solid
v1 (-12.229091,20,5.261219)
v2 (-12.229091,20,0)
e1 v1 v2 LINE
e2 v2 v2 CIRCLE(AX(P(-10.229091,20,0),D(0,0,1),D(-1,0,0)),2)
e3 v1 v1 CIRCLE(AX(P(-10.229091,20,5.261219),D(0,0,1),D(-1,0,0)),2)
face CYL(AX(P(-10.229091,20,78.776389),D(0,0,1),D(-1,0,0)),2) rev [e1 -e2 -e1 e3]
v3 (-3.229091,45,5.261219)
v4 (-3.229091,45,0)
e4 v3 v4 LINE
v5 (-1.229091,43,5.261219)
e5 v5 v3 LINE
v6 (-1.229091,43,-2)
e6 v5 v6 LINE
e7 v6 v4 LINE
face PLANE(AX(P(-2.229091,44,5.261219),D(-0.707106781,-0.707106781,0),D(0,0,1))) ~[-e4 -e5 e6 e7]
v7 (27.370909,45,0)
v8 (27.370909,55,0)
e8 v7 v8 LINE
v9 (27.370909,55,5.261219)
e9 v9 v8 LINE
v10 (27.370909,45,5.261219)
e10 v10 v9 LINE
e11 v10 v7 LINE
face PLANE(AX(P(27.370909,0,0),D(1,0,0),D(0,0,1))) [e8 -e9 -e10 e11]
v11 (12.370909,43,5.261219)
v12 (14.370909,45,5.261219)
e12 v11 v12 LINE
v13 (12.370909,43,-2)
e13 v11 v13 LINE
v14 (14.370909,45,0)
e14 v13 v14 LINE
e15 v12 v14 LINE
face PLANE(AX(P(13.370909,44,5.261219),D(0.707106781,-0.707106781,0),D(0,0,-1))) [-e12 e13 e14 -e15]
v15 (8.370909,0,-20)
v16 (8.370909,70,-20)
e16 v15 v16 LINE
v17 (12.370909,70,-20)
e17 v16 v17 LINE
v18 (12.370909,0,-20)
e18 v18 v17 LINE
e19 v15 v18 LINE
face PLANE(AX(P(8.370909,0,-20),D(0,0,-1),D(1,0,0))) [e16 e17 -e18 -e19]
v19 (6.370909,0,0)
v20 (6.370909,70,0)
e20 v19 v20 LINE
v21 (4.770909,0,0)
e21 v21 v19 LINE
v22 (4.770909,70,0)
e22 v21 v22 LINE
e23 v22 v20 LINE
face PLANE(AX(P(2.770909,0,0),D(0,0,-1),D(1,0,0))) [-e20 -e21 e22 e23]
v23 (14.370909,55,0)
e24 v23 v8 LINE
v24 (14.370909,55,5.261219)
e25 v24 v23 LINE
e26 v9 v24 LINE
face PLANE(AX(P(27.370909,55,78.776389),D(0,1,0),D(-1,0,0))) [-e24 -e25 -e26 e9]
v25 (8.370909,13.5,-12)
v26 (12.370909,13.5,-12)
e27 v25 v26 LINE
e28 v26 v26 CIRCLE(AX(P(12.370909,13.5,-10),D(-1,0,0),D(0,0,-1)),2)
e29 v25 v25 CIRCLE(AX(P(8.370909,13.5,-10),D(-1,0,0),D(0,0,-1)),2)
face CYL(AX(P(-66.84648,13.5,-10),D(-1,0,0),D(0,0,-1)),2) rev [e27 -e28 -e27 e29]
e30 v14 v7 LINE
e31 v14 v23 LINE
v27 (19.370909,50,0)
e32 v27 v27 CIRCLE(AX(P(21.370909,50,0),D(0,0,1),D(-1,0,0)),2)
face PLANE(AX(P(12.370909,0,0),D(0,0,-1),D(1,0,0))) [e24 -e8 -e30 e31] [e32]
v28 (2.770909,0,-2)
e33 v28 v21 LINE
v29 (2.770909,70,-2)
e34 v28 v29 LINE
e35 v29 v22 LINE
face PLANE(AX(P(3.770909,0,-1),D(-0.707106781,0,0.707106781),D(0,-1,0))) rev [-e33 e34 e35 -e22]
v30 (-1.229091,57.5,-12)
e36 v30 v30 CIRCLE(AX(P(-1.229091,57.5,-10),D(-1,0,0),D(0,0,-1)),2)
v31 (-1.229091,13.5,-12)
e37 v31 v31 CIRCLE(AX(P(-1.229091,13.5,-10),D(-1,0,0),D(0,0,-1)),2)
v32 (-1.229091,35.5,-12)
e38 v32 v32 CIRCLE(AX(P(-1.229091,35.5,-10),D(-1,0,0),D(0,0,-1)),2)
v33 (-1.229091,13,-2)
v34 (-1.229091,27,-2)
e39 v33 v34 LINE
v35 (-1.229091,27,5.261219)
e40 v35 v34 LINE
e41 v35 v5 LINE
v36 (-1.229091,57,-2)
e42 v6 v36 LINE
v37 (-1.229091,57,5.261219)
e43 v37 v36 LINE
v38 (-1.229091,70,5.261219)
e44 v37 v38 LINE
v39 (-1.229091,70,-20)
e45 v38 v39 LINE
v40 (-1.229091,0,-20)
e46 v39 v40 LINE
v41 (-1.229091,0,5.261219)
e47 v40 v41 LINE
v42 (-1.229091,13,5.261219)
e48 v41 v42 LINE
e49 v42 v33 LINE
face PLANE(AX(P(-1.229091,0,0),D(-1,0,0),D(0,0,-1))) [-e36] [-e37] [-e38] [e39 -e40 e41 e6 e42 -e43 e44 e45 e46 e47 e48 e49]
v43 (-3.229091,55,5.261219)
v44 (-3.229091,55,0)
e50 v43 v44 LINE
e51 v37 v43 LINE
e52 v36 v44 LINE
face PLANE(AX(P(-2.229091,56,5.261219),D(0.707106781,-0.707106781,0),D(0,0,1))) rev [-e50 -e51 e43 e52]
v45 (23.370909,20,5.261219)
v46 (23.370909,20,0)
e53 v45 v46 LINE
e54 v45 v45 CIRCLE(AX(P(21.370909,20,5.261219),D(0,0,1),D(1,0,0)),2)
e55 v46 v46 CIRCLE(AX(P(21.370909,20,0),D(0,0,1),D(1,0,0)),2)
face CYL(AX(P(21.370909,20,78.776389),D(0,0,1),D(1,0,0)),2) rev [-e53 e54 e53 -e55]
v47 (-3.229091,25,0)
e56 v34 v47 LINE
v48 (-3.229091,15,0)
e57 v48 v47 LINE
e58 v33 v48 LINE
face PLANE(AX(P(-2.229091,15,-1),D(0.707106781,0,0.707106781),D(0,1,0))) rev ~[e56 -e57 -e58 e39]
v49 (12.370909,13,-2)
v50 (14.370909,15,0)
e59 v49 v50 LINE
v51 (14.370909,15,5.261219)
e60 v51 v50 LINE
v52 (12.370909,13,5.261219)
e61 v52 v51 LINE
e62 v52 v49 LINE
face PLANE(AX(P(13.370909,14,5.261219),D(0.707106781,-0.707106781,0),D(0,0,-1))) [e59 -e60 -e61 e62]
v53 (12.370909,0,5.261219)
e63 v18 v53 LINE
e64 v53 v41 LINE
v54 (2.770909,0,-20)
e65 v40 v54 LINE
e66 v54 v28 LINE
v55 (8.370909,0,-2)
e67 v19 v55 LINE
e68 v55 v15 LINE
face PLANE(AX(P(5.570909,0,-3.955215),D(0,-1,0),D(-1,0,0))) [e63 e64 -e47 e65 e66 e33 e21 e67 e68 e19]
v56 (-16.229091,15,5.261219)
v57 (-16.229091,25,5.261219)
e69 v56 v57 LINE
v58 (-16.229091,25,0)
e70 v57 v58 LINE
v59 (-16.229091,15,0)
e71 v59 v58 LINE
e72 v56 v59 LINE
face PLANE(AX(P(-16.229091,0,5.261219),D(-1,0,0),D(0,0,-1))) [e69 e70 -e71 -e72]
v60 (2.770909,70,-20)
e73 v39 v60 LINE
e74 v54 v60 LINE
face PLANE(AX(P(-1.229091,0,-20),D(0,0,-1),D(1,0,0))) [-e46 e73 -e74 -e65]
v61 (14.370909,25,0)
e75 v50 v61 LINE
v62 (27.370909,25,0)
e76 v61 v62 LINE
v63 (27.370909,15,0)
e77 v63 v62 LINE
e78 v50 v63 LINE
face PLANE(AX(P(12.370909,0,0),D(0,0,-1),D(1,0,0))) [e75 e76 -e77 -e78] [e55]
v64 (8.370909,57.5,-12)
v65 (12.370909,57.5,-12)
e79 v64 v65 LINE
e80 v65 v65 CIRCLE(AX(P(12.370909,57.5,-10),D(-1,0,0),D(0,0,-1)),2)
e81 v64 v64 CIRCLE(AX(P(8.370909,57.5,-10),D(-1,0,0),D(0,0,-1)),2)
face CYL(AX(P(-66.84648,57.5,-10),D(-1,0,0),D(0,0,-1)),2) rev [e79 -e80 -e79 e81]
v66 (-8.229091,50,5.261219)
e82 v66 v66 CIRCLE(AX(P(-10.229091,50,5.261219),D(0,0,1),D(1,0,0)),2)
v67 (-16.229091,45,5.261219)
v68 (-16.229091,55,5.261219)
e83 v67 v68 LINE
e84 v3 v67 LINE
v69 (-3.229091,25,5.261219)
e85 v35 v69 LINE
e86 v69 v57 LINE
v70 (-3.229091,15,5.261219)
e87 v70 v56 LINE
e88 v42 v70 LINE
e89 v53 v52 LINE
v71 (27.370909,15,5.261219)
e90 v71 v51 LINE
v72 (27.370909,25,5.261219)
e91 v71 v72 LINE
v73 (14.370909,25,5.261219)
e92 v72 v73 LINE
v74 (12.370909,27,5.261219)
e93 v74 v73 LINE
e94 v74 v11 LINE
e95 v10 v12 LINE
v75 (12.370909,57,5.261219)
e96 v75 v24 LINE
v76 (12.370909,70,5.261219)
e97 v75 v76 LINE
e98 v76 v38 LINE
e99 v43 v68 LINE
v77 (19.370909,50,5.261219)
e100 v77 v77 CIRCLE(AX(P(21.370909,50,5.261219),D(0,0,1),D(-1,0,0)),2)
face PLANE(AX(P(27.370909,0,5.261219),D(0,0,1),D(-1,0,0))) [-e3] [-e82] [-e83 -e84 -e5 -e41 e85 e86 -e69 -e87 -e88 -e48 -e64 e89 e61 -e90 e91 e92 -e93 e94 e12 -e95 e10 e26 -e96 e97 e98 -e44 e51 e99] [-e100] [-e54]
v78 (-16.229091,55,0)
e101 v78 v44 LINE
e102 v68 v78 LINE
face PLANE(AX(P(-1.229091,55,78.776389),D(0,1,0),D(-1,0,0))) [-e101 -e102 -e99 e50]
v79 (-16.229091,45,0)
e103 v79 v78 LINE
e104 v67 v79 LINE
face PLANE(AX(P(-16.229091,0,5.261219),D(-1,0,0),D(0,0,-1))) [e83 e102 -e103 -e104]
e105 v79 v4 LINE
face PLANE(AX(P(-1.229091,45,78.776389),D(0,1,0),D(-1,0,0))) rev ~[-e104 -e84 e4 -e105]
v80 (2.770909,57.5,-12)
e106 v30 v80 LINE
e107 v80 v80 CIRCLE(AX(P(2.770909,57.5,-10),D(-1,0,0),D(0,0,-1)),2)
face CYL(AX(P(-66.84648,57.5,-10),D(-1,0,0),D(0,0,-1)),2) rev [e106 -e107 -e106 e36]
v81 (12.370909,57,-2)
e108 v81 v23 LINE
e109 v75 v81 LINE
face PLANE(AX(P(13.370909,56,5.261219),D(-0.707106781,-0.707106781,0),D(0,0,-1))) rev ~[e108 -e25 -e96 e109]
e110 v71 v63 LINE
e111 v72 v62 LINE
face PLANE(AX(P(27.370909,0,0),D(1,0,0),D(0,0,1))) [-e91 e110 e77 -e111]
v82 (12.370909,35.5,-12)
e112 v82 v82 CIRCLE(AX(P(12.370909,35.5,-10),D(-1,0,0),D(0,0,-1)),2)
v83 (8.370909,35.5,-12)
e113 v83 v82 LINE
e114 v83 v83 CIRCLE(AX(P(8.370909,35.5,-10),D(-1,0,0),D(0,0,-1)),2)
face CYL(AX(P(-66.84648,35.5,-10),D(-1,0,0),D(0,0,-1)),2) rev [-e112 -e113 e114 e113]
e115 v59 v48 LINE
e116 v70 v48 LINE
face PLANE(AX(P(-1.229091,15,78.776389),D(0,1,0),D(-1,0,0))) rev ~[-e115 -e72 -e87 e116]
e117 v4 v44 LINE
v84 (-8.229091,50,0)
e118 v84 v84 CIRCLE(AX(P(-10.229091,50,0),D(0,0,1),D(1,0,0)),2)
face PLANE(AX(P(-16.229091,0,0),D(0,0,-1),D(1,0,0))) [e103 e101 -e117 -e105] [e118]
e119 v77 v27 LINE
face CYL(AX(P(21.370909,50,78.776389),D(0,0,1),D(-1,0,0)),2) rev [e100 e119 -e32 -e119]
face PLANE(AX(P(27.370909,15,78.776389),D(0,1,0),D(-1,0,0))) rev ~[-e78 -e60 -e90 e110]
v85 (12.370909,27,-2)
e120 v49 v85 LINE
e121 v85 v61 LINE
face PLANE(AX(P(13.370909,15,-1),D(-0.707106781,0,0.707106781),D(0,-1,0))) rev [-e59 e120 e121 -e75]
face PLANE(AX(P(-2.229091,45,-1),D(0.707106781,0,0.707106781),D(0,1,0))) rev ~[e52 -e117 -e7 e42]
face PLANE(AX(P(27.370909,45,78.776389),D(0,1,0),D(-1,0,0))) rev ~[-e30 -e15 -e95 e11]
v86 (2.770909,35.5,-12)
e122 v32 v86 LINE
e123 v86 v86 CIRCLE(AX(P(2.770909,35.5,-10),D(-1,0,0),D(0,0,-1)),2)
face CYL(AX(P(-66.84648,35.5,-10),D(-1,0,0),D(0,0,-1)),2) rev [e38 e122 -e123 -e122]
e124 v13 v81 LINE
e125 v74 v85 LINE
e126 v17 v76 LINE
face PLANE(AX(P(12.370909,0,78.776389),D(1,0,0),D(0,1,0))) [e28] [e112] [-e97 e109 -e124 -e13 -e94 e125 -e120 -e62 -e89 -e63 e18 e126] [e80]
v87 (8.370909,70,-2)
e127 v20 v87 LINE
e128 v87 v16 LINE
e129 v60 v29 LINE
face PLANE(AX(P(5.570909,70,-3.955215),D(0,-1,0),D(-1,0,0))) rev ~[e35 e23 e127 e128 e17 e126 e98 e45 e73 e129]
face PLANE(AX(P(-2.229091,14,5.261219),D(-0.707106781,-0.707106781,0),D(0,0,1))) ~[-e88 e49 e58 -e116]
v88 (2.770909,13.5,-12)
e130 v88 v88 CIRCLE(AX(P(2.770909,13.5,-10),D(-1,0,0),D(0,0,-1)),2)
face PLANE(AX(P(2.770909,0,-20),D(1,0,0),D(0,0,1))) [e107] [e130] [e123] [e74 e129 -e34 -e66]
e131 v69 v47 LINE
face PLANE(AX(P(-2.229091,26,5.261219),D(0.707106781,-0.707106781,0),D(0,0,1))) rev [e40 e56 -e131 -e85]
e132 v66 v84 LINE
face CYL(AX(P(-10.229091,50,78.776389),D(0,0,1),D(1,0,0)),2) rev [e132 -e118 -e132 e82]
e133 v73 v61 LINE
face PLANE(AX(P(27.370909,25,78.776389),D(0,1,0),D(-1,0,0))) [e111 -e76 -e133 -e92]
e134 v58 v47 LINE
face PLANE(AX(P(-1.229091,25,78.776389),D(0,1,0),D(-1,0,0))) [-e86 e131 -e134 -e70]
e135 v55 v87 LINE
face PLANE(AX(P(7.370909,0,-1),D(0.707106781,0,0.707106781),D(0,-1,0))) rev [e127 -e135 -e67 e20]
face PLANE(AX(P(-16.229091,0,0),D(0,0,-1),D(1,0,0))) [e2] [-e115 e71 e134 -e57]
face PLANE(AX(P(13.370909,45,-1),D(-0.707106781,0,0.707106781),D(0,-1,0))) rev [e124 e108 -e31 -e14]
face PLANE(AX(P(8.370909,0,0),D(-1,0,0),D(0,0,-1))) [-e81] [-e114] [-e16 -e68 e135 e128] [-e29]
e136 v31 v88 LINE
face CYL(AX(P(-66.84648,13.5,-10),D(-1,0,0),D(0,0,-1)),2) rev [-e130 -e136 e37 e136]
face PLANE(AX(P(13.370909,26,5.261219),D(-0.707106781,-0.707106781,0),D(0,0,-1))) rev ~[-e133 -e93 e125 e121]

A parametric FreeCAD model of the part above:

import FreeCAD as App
import Part
import Sketcher

V = App.Vector


def edges_at(feature, points):
    """Names of the edges that pass closest to the given points."""
    edges = feature.Shape.Edges
    near = lambda p: min(range(len(edges)), key=lambda i: edges[i].distToShape(Part.Vertex(*p))[0])
    return sorted({f"Edge{near(p) + 1}" for p in points})


def add_polygon(sketch, points):
    """Adds a closed chain of lines whose ends are joined by coincident constraints."""
    first, n = sketch.GeometryCount, len(points)
    for a, b in zip(points, points[1:] + points[:1]):
        sketch.addGeometry(Part.LineSegment(App.Vector(*a, 0), App.Vector(*b, 0)), False)
    for i in range(n):
        sketch.addConstraint(Sketcher.Constraint("Coincident", first + i, 2, first + (i + 1) % n, 1))

doc = App.newDocument("Part")
body = doc.addObject("PartDesign::Body", "Body")

sketch1 = body.newObject("Sketcher::SketchObject", "Sketch")
sketch1.AttachmentSupport = (doc.getObject("XZ_Plane"), [""])
sketch1.MapMode = "FlatFace"
add_polygon(sketch1, [(-1.229091, 0), (-16.229091, 0), (-16.229091, 5.261219), (27.370909, 5.261219), (27.370909, 0), (12.370909, 0), (12.370909, -20), (8.370909, -20), (8.370909, 0), (2.770909, 0), (2.770909, -20), (-1.229091, -20)])
sketch1.addConstraint([
    Sketcher.Constraint("Horizontal", 0),
    Sketcher.Constraint("Vertical", 1),
    Sketcher.Constraint("Horizontal", 2),
    Sketcher.Constraint("Vertical", 3),
    Sketcher.Constraint("Horizontal", 4),
    Sketcher.Constraint("Vertical", 5),
    Sketcher.Constraint("Horizontal", 6),
    Sketcher.Constraint("Vertical", 7),
    Sketcher.Constraint("Horizontal", 8),
    Sketcher.Constraint("Vertical", 9),
    Sketcher.Constraint("Horizontal", 10),
    Sketcher.Constraint("Vertical", 11),
    Sketcher.Constraint("PointOnObject", 0, 2, -1),
    Sketcher.Constraint("PointOnObject", 3, 2, -1),
    Sketcher.Constraint("PointOnObject", 7, 2, -1),
    Sketcher.Constraint("Horizontal", 6, 2, 9, 2),
    Sketcher.Constraint("Equal", 0, 4),
    Sketcher.Constraint("Equal", 6, 10),
    Sketcher.Constraint("DistanceX", 0, 2, 0, 1, 15.0),
    Sketcher.Constraint("DistanceX", 6, 2, 6, 1, 4.0),
    Sketcher.Constraint("DistanceY", 5, 2, 5, 1, 20.0),
    Sketcher.Constraint("DistanceX", 2, 1, 2, 2, 43.6),
    Sketcher.Constraint("DistanceY", 1, 1, 1, 2, 5.261219),
    Sketcher.Constraint("DistanceX", 0, 2, -1, 1, 16.229091),
])
pad1 = body.newObject("PartDesign::Pad", "Pad")
pad1.Profile = sketch1
pad1.Length = 70
pad1.Reversed = True

sketch2 = body.newObject("Sketcher::SketchObject", "Sketch001")
sketch2.AttachmentSupport = (doc.getObject("XY_Plane"), [""])
sketch2.MapMode = "FlatFace"
sketch2.addGeometry(Part.Circle(V(21.370909, 50, 0), V(0, 0, 1), 2), False)
sketch2.addGeometry(Part.Circle(V(-10.229091, 50, 0), V(0, 0, 1), 2), False)
sketch2.addGeometry(Part.Circle(V(-10.229091, 20, 0), V(0, 0, 1), 2), False)
sketch2.addGeometry(Part.Circle(V(21.370909, 20, 0), V(0, 0, 1), 2), False)
add_polygon(sketch2, [(27.370909, 70), (27.370909, 55), (12.370909, 55), (12.370909, 70)])
add_polygon(sketch2, [(27.370909, 45), (27.370909, 25), (12.370909, 25), (12.370909, 45)])
add_polygon(sketch2, [(-1.229091, 45), (-1.229091, 25), (-16.229091, 25), (-16.229091, 45)])
add_polygon(sketch2, [(-1.229091, 70), (-1.229091, 55), (-16.229091, 55), (-16.229091, 70)])
add_polygon(sketch2, [(-1.229091, 15), (-1.229091, 0), (-16.229091, 0), (-16.229091, 15)])
add_polygon(sketch2, [(27.370909, 15), (27.370909, 0), (12.370909, 0), (12.370909, 15)])
sketch2.addConstraint([
    Sketcher.Constraint("Vertical", 4),
    Sketcher.Constraint("Horizontal", 5),
    Sketcher.Constraint("Vertical", 6),
    Sketcher.Constraint("Horizontal", 7),
    Sketcher.Constraint("Vertical", 8),
    Sketcher.Constraint("Horizontal", 9),
    Sketcher.Constraint("Vertical", 10),
    Sketcher.Constraint("Horizontal", 11),
    Sketcher.Constraint("Vertical", 12),
    Sketcher.Constraint("Horizontal", 13),
    Sketcher.Constraint("Vertical", 14),
    Sketcher.Constraint("Horizontal", 15),
    Sketcher.Constraint("Vertical", 16),
    Sketcher.Constraint("Horizontal", 17),
    Sketcher.Constraint("Vertical", 18),
    Sketcher.Constraint("Horizontal", 19),
    Sketcher.Constraint("Vertical", 20),
    Sketcher.Constraint("Horizontal", 21),
    Sketcher.Constraint("Vertical", 22),
    Sketcher.Constraint("Horizontal", 23),
    Sketcher.Constraint("Vertical", 24),
    Sketcher.Constraint("Horizontal", 25),
    Sketcher.Constraint("Vertical", 26),
    Sketcher.Constraint("Horizontal", 27),
    Sketcher.Constraint("Equal", 0, 1),
    Sketcher.Constraint("Equal", 1, 2),
    Sketcher.Constraint("Equal", 2, 3),
    Sketcher.Constraint("PointOnObject", 20, 2, -1),
    Sketcher.Constraint("PointOnObject", 24, 2, -1),
    Sketcher.Constraint("Horizontal", 0, 3, 1, 3),
    Sketcher.Constraint("Horizontal", 2, 3, 3, 3),
    Sketcher.Constraint("Horizontal", 9, 2, 12, 2),
    Sketcher.Constraint("Horizontal", 11, 2, 14, 2),
    Sketcher.Constraint("Horizontal", 5, 2, 16, 2),
    Sketcher.Constraint("Horizontal", 7, 2, 18, 2),
    Sketcher.Constraint("Horizontal", 23, 2, 26, 2),
    Sketcher.Constraint("Vertical", 1, 3, 2, 3),
    Sketcher.Constraint("Vertical", 0, 3, 3, 3),
    Sketcher.Constraint("Vertical", 7, 2, 8, 2),
    Sketcher.Constraint("Vertical", 6, 2, 9, 2),
    Sketcher.Constraint("Vertical", 15, 2, 16, 2),
    Sketcher.Constraint("Vertical", 14, 2, 17, 2),
    Sketcher.Constraint("Vertical", 19, 2, 20, 2),
    Sketcher.Constraint("Vertical", 18, 2, 21, 2),
    Sketcher.Constraint("Vertical", 11, 2, 24, 2),
    Sketcher.Constraint("Vertical", 10, 2, 25, 2),
    Sketcher.Constraint("Equal", 11, 13),
    Sketcher.Constraint("Equal", 27, 4),
    Sketcher.Constraint("Equal", 18, 20),
    Sketcher.Constraint("Diameter", 0, 4.0),
    Sketcher.Constraint("DistanceX", 5, 2, 5, 1, 15.0),
    Sketcher.Constraint("DistanceY", 8, 2, 8, 1, 20.0),
    Sketcher.Constraint("DistanceY", -1, 1, 0, 3, 50.0),
    Sketcher.Constraint("DistanceY", -1, 1, 2, 3, 20.0),
    Sketcher.Constraint("DistanceY", -1, 1, 4, 2, 55.0),
    Sketcher.Constraint("DistanceY", -1, 1, 8, 2, 25.0),
    Sketcher.Constraint("DistanceX", 0, 3, 4, 2, 6.0),
    Sketcher.Constraint("DistanceX", 2, 3, 12, 2, 9.0),
    Sketcher.Constraint("DistanceX", 1, 3, 0, 3, 31.6),
    Sketcher.Constraint("DistanceX", -1, 1, 0, 3, 21.370909),
])
pocket1 = body.newObject("PartDesign::Pocket", "Pocket")
pocket1.Profile = sketch2
pocket1.Type = "ThroughAll"
pocket1.Midplane = True

sketch3 = body.newObject("Sketcher::SketchObject", "Sketch002")
sketch3.AttachmentSupport = (doc.getObject("YZ_Plane"), [""])
sketch3.MapMode = "FlatFace"
sketch3.AttachmentOffset = App.Placement(V(0, 0, 12.370909), App.Rotation())
sketch3.addGeometry([
    Part.Circle(V(57.5, -10, 0), V(0, 0, 1), 2),
    Part.Circle(V(35.5, -10, 0), V(0, 0, 1), 2),
    Part.Circle(V(13.5, -10, 0), V(0, 0, 1), 2),
], False)
sketch3.addConstraint([
    Sketcher.Constraint("Equal", 0, 1),
    Sketcher.Constraint("Equal", 1, 2),
    Sketcher.Constraint("Horizontal", 0, 3, 1, 3),
    Sketcher.Constraint("Horizontal", 1, 3, 2, 3),
    Sketcher.Constraint("Diameter", 0, 4.0),
    Sketcher.Constraint("DistanceY", 0, 3, -1, 1, 10.0),
    Sketcher.Constraint("DistanceX", 1, 3, 0, 3, 22.0),
    Sketcher.Constraint("DistanceX", 2, 3, 1, 3, 22.0),
    Sketcher.Constraint("DistanceX", -1, 1, 0, 3, 57.5),
])
pocket2 = body.newObject("PartDesign::Pocket", "Pocket001")
pocket2.Profile = sketch3
pocket2.Type = "ThroughAll"
pocket2.Midplane = True
doc.recompute()

chamfer = body.newObject("PartDesign::Chamfer", "Chamfer")
chamfer.Base = (pocket2, edges_at(pocket2, [
    (-1.229, 25, 2.631),
    (12.371, 25, 2.631),
    (12.371, 45, 2.631),
    (12.371, 55, 2.631),
    (2.771, 35, 0),
    (8.371, 35, 0),
    (12.371, 50, 0),
    (12.371, 20, 0),
    (-1.229, 50, 0),
    (-1.229, 20, 0),
    (12.371, 15, 2.631),
    (-1.229, 15, 2.631),
    (-1.229, 55, 2.631),
    (-1.229, 45, 2.631),
]))
chamfer.Size = 2

doc.recompute()
